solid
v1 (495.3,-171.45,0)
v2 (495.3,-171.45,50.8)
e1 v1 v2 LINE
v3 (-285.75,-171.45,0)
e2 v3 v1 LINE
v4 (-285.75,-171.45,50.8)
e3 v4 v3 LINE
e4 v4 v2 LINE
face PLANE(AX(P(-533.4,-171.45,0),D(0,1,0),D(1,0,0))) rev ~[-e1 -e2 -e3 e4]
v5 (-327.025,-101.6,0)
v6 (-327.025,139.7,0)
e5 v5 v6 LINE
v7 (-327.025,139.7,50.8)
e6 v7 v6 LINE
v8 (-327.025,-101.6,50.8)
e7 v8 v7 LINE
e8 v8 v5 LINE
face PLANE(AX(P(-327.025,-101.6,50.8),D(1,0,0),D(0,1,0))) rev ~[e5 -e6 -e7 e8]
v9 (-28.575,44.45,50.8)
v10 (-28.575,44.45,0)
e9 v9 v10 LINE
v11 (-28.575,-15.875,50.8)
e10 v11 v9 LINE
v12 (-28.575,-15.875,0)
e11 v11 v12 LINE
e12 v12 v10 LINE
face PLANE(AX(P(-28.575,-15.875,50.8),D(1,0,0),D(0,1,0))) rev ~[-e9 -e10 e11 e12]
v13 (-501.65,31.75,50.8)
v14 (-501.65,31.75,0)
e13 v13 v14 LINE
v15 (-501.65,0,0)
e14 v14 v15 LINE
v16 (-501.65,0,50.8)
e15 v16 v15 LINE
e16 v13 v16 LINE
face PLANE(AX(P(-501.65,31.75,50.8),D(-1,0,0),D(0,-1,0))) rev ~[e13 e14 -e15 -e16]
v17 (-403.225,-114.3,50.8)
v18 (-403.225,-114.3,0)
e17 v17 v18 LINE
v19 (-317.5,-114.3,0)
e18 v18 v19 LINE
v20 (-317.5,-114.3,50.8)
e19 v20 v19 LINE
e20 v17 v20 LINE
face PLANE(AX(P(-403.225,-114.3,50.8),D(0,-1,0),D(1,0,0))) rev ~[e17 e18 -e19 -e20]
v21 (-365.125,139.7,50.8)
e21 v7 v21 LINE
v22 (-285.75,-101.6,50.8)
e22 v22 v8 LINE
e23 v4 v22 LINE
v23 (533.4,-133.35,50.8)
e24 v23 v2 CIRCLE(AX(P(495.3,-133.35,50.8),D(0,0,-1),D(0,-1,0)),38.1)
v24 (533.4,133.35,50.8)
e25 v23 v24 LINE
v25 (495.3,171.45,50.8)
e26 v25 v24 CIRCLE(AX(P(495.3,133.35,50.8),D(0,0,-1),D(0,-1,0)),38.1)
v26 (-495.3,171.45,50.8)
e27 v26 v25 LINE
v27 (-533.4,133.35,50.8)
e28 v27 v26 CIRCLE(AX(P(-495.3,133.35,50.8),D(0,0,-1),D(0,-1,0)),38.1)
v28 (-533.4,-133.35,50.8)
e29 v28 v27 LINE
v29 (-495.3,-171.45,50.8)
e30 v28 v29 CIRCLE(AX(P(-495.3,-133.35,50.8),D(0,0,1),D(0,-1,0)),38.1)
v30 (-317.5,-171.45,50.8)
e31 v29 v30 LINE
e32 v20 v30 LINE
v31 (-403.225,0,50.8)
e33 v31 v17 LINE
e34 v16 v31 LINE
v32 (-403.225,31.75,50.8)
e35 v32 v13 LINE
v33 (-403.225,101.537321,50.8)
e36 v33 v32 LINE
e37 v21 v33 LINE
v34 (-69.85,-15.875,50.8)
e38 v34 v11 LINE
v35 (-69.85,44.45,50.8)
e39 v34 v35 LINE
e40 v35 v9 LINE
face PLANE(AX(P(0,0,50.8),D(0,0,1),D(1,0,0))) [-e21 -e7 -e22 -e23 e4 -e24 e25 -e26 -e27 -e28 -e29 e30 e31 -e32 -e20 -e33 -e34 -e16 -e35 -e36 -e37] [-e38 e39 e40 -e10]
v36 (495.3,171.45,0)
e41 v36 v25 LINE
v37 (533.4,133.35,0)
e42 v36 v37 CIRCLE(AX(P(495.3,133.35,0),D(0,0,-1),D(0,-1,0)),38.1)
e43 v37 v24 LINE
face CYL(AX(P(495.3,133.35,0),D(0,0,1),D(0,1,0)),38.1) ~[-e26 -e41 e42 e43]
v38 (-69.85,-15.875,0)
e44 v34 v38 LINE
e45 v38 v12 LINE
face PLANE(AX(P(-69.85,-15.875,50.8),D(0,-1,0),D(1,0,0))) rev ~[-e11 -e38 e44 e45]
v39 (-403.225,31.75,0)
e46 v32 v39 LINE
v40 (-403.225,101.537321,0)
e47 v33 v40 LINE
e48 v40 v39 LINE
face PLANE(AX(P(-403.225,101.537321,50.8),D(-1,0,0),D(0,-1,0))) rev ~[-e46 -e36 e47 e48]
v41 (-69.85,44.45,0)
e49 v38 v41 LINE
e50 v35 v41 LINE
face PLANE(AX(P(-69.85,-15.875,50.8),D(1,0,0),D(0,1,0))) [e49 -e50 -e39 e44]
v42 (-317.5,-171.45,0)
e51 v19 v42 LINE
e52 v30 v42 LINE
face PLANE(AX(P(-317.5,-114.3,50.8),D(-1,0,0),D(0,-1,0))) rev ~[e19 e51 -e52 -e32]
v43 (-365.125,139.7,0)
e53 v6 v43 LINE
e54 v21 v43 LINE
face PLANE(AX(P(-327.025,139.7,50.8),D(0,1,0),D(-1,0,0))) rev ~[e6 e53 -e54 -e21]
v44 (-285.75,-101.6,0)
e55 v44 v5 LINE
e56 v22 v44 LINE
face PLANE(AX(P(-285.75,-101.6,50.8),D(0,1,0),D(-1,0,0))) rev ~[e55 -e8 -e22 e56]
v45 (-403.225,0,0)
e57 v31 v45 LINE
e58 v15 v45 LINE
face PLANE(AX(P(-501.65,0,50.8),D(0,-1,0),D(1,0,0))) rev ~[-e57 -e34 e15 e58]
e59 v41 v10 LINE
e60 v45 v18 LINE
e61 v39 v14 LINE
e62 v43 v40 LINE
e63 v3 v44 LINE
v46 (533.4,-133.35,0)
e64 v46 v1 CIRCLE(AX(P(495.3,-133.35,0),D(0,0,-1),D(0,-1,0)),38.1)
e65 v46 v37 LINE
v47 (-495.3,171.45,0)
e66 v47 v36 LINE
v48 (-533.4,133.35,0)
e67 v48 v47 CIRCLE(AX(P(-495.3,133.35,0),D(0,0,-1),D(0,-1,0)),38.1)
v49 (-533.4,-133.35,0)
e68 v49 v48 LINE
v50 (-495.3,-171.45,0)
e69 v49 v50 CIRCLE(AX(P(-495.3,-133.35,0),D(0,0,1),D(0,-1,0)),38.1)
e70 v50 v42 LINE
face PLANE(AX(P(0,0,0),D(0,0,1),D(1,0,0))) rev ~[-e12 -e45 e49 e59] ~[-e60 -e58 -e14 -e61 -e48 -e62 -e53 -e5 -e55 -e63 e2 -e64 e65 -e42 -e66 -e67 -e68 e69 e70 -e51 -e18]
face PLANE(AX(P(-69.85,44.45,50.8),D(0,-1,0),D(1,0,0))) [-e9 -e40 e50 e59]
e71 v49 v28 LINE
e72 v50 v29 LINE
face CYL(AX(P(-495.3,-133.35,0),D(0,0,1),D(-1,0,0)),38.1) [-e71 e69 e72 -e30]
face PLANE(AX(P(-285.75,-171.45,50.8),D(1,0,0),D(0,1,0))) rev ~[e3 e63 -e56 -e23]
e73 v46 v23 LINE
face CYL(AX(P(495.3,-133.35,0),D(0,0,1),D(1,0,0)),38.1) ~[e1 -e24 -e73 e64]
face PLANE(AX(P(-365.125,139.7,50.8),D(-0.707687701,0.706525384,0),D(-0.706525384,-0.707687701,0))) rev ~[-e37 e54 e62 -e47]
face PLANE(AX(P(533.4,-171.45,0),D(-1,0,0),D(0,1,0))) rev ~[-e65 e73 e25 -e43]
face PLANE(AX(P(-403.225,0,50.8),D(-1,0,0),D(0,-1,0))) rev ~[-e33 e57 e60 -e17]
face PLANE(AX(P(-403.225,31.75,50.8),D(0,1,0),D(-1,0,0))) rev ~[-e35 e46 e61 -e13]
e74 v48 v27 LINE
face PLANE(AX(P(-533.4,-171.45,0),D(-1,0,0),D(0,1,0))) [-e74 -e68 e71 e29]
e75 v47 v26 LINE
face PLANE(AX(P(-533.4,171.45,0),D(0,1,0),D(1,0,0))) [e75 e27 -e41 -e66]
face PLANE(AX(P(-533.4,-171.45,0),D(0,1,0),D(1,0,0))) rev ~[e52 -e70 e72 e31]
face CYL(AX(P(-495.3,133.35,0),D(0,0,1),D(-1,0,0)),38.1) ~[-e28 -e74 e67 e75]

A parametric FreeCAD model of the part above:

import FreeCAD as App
import Part
import Sketcher
Q = App.Units.Quantity


def edges_at(feature, points):
    """Names of the edges that pass closest to the given points."""
    edges = feature.Shape.Edges
    near = lambda p: min(range(len(edges)), key=lambda i: edges[i].distToShape(Part.Vertex(*p))[0])
    return sorted({f"Edge{near(p) + 1}" for p in points})


def add_polygon(sketch, points):
    """Adds a closed chain of lines whose ends are joined by coincident constraints."""
    first, n = sketch.GeometryCount, len(points)
    for a, b in zip(points, points[1:] + points[:1]):
        sketch.addGeometry(Part.LineSegment(App.Vector(*a, 0), App.Vector(*b, 0)), False)
    for i in range(n):
        sketch.addConstraint(Sketcher.Constraint("Coincident", first + i, 2, first + (i + 1) % n, 1))

doc = App.newDocument("Part")
body = doc.addObject("PartDesign::Body", "Body")

# Sketch on XY plane
sketch1 = doc.addObject("Sketcher::SketchObject", "Sketch")
body.addObject(sketch1)
sketch1.AttachmentSupport = (doc.XY_Plane, [""])
sketch1.MapMode = "FlatFace"
add_polygon(sketch1, [(-533, 171), (-533, -171), (533, -171), (533, 171)])  # lines 0-3
sketch1.addConstraint([
    Sketcher.Constraint("Vertical", 0),
    Sketcher.Constraint("Horizontal", 1),
    Sketcher.Constraint("Vertical", 2),
    Sketcher.Constraint("Horizontal", 3),
    Sketcher.Constraint("Symmetric", 0, 2, 2, 2, -1, 1),
    Sketcher.Constraint("DistanceX", 1, 1, 1, 2, Q("42 in")),
    Sketcher.Constraint("DistanceY", 0, 2, 0, 1, Q("13.5 in")),
])
pad1 = doc.addObject("PartDesign::Pad", "Pad")
body.addObject(pad1)
pad1.Profile = sketch1
pad1.Length = Q("2 in")

# Sketch on XY plane
sketch2 = doc.addObject("Sketcher::SketchObject", "Sketch001")
body.addObject(sketch2)
sketch2.AttachmentSupport = (doc.XY_Plane, [""])
sketch2.MapMode = "FlatFace"
sketch2.AttachmentOffset = App.Placement(App.Vector(0, 0, 2 * 25.4), App.Rotation())
add_polygon(sketch2, [(-318, -114), (-318, -171), (-286, -171), (-286, -102), (-327, -102), (-327, 140), (-365, 140), (-403, 102), (-403, 32), (-502, 32), (-502, 0), (-403, 0), (-403, -114)])  # lines 0-12
add_polygon(sketch2, [(-70, 44), (-70, -16), (-29, -16), (-29, 44)])  # lines 13-16
sketch2.addConstraint([
    Sketcher.Constraint("Vertical", 0),
    Sketcher.Constraint("Horizontal", 1),
    Sketcher.Constraint("Vertical", 2),
    Sketcher.Constraint("Horizontal", 3),
    Sketcher.Constraint("Vertical", 4),
    Sketcher.Constraint("Horizontal", 5),
    Sketcher.Constraint("Vertical", 7),
    Sketcher.Constraint("Horizontal", 8),
    Sketcher.Constraint("Vertical", 9),
    Sketcher.Constraint("Horizontal", 10),
    Sketcher.Constraint("Vertical", 11),
    Sketcher.Constraint("Horizontal", 12),
    Sketcher.Constraint("Vertical", 13),
    Sketcher.Constraint("Horizontal", 14),
    Sketcher.Constraint("Vertical", 15),
    Sketcher.Constraint("Horizontal", 16),
    Sketcher.Constraint("PointOnObject", 9, 2, -1),
    Sketcher.Constraint("Vertical", 7, 2, 10, 2),
    Sketcher.Constraint("Equal", 3, 14),
    Sketcher.Constraint("Equal", 1, 9),
    Sketcher.Constraint("DistanceX", 5, 2, 5, 1, Q("1.5 in")),
    Sketcher.Constraint("DistanceY", 4, 1, 4, 2, Q("9.5 in")),
    Sketcher.Constraint("DistanceY", 11, 2, 11, 1, Q("4.5 in")),
    Sketcher.Constraint("DistanceY", 2, 2, -1, 1, Q("4 in")),
    Sketcher.Constraint("DistanceX", 6, 2, 4, 2, Q("3 in")),
    Sketcher.Constraint("DistanceX", 1, 1, 1, 2, Q("1.25 in")),
    Sketcher.Constraint("DistanceY", 0, 2, 0, 1, Q("2.25 in")),
    Sketcher.Constraint("DistanceX", 0, 2, -1, 1, Q("12.5 in")),
    Sketcher.Constraint("DistanceX", 2, 2, 13, 2, Q("8.5 in")),
    Sketcher.Constraint("DistanceX", 3, 2, 3, 1, Q("1.625 in")),
    Sketcher.Constraint("DistanceX", 8, 2, 8, 1, Q("3.875 in")),
    Sketcher.Constraint("DistanceY", 13, 2, 13, 1, Q("2.375 in")),
    Sketcher.Constraint("DistanceY", -1, 1, 15, 2, Q("1.75 in")),
    Sketcher.Constraint("DistanceY", 7, 2, 7, 1, 69.787321),
])
pocket1 = doc.addObject("PartDesign::Pocket", "Pocket")
body.addObject(pocket1)
pocket1.Profile = sketch2
pocket1.Length = Q("2 in")
doc.recompute()

fillet = doc.addObject("PartDesign::Fillet", "Fillet")
body.addObject(fillet)
fillet.Base = (pocket1, edges_at(pocket1, [
    (-533.4, 171.45, 25.4),
    (-533.4, -171.45, 25.4),
    (533.4, 171.45, 25.4),
    (533.4, -171.45, 25.4),
]))
fillet.Radius = Q("1.5 in")

doc.recompute()
